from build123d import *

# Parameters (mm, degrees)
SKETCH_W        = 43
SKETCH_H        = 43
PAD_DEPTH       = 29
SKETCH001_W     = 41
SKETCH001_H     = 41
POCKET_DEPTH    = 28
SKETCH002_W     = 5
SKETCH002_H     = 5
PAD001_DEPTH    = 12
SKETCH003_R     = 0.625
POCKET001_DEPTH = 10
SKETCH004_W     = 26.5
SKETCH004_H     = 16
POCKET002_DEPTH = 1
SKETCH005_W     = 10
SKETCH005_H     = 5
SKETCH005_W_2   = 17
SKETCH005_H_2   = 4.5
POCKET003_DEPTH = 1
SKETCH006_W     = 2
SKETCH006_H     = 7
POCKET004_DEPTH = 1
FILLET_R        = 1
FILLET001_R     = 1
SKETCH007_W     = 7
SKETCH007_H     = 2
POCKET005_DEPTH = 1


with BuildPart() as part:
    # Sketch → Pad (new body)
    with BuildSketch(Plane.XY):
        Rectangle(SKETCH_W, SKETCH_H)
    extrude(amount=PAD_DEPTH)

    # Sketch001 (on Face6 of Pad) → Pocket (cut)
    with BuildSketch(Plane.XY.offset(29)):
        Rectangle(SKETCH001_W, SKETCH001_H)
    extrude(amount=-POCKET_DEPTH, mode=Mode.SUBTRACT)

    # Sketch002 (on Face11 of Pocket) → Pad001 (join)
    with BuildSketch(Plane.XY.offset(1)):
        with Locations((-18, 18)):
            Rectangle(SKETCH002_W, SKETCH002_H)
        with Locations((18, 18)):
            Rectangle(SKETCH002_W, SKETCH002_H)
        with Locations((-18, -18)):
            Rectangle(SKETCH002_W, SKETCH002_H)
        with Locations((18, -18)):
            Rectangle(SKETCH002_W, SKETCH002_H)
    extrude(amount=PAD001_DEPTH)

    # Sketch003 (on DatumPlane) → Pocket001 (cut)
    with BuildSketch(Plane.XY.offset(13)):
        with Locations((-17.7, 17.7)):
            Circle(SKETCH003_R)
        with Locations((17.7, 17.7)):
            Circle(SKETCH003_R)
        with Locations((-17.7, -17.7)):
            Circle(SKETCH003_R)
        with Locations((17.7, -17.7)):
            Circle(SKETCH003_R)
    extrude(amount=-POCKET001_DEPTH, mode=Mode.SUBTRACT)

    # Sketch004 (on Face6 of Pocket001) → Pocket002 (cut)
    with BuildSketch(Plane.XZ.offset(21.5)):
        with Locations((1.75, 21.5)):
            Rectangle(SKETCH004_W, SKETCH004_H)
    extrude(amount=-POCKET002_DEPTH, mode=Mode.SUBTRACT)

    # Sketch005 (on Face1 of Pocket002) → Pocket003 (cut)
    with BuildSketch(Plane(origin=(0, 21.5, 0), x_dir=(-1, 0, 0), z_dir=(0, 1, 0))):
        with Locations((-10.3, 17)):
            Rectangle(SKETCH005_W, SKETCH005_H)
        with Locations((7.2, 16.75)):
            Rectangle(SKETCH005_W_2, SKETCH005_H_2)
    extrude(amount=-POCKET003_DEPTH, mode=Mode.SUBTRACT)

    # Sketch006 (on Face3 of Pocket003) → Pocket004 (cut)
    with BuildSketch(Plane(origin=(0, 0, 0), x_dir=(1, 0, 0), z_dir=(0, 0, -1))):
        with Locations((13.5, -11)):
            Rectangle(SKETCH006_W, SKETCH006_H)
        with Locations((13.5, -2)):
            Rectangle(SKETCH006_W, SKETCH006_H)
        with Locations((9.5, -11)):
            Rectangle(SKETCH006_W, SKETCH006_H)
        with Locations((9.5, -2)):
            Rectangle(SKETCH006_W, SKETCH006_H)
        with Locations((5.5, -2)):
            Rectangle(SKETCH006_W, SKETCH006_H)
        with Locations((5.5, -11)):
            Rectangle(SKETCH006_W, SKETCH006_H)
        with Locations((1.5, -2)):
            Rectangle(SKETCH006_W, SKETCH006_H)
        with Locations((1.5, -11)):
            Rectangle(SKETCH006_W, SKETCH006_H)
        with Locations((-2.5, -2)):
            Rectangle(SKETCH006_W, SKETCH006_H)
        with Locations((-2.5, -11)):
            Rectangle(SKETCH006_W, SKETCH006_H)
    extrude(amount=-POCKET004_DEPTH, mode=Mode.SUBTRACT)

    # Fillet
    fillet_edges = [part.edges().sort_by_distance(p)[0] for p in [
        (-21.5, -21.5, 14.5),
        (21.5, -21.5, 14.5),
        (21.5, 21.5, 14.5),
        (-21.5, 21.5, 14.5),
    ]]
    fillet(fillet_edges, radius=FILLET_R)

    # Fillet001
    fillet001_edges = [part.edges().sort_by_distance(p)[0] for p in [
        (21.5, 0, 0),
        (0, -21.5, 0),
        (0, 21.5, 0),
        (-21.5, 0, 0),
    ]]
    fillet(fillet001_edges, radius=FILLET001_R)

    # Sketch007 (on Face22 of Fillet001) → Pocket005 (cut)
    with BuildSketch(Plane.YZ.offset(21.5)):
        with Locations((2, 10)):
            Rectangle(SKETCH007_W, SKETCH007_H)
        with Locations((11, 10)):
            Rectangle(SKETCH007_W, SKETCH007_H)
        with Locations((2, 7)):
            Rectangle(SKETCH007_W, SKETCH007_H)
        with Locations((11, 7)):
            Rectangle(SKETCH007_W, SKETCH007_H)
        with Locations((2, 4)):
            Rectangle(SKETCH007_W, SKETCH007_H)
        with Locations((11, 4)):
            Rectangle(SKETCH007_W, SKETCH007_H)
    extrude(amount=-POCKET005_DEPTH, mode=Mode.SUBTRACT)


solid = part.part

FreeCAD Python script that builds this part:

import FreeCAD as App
import Part
import Sketcher
from FreeCAD import Vector


def edges_at(feature, points):
    """Names of the edges that pass closest to the given points."""
    edges = feature.Shape.Edges
    near = lambda p: min(range(len(edges)), key=lambda i: edges[i].distToShape(Part.Vertex(*p))[0])
    return sorted({f"Edge{near(p) + 1}" for p in points})


def add_polygon(sketch, points):
    """Adds a closed chain of lines whose ends are joined by coincident constraints."""
    first, n = sketch.GeometryCount, len(points)
    for a, b in zip(points, points[1:] + points[:1]):
        sketch.addGeometry(Part.LineSegment(App.Vector(*a, 0), App.Vector(*b, 0)), False)
    for i in range(n):
        sketch.addConstraint(Sketcher.Constraint("Coincident", first + i, 2, first + (i + 1) % n, 1))

doc = App.newDocument("Part")
body = doc.addObject("PartDesign::Body", "Body")

sketch1 = body.newObject("Sketcher::SketchObject", "Sketch")
sketch1.AttachmentSupport = (doc.getObject("XY_Plane"), [""])
sketch1.MapMode = "FlatFace"
add_polygon(sketch1, [(-22, 22), (-22, -22), (22, -22), (22, 22)])
sketch1.addConstraint([
    Sketcher.Constraint("Vertical", 0),
    Sketcher.Constraint("Horizontal", 1),
    Sketcher.Constraint("Vertical", 2),
    Sketcher.Constraint("Horizontal", 3),
    Sketcher.Constraint("Symmetric", 0, 2, 2, 2, -1, 1),
    Sketcher.Constraint("Equal", 3, 0),
    Sketcher.Constraint("DistanceX", 1, 1, 1, 2, 43.0),
])
pad1 = body.newObject("PartDesign::Pad", "Pad")
pad1.Profile = sketch1
pad1.Length = 29

sketch2 = body.newObject("Sketcher::SketchObject", "Sketch001")
sketch2.AttachmentSupport = (doc.getObject("XY_Plane"), [""])
sketch2.MapMode = "FlatFace"
sketch2.AttachmentOffset = App.Placement(Vector(0, 0, 29), App.Rotation())
add_polygon(sketch2, [(-20, 20), (-20, -20), (20, -20), (20, 20)])
sketch2.addConstraint([
    Sketcher.Constraint("Vertical", 0),
    Sketcher.Constraint("Horizontal", 1),
    Sketcher.Constraint("Vertical", 2),
    Sketcher.Constraint("Horizontal", 3),
    Sketcher.Constraint("Symmetric", 0, 2, 2, 2, -1, 1),
    Sketcher.Constraint("Equal", 3, 0),
    Sketcher.Constraint("DistanceX", 1, 1, 1, 2, 41.0),
])
pocket1 = body.newObject("PartDesign::Pocket", "Pocket")
pocket1.Profile = sketch2
pocket1.Length = 28

sketch3 = body.newObject("Sketcher::SketchObject", "Sketch002")
sketch3.AttachmentSupport = (doc.getObject("XY_Plane"), [""])
sketch3.MapMode = "FlatFace"
sketch3.AttachmentOffset = App.Placement(Vector(0, 0, 1), App.Rotation())
add_polygon(sketch3, [(-20, 20), (-20, 16), (-16, 16), (-16, 20)])
add_polygon(sketch3, [(16, 20), (16, 16), (20, 16), (20, 20)])
add_polygon(sketch3, [(-20, -16), (-20, -20), (-16, -20), (-16, -16)])
add_polygon(sketch3, [(16, -16), (16, -20), (20, -20), (20, -16)])
sketch3.addConstraint([
    Sketcher.Constraint("Vertical", 0),
    Sketcher.Constraint("Horizontal", 1),
    Sketcher.Constraint("Vertical", 2),
    Sketcher.Constraint("Horizontal", 3),
    Sketcher.Constraint("Vertical", 4),
    Sketcher.Constraint("Horizontal", 5),
    Sketcher.Constraint("Vertical", 6),
    Sketcher.Constraint("Horizontal", 7),
    Sketcher.Constraint("Vertical", 8),
    Sketcher.Constraint("Horizontal", 9),
    Sketcher.Constraint("Vertical", 10),
    Sketcher.Constraint("Horizontal", 11),
    Sketcher.Constraint("Vertical", 12),
    Sketcher.Constraint("Horizontal", 13),
    Sketcher.Constraint("Vertical", 14),
    Sketcher.Constraint("Horizontal", 15),
    Sketcher.Constraint("Symmetric", 6, 2, 8, 2, -1, 1),
    Sketcher.Constraint("Symmetric", 4, 2, 10, 2, -1, 1),
    Sketcher.Constraint("Symmetric", 2, 2, 12, 2, -1, 1),
    Sketcher.Constraint("Symmetric", 0, 2, 14, 2, -1, 1),
    Sketcher.Constraint("Symmetric", 1, 2, 4, 2, -2),
    Sketcher.Constraint("Symmetric", 3, 2, 6, 2, -2),
    Sketcher.Constraint("Equal", 15, 0),
    Sketcher.Constraint("DistanceX", 1, 1, 1, 2, 5.0),
    Sketcher.Constraint("DistanceX", 1, 2, 4, 2, 31.0),
    Sketcher.Constraint("DistanceY", 8, 2, 0, 2, 36.0),
])
pad2 = body.newObject("PartDesign::Pad", "Pad001")
pad2.Profile = sketch3
pad2.Length = 12

sketch4 = body.newObject("Sketcher::SketchObject", "Sketch003")
sketch4.AttachmentSupport = (doc.getObject("XY_Plane"), [""])
sketch4.MapMode = "FlatFace"
sketch4.AttachmentOffset = App.Placement(Vector(0, 0, 13), App.Rotation())
sketch4.addGeometry([
    Part.Circle(Vector(-17.7, 17.7, 0), Vector(0, 0, 1), 0.6),
    Part.Circle(Vector(17.7, 17.7, 0), Vector(0, 0, 1), 0.6),
    Part.Circle(Vector(-17.7, -17.7, 0), Vector(0, 0, 1), 0.6),
    Part.Circle(Vector(17.7, -17.7, 0), Vector(0, 0, 1), 0.6),
], False)
sketch4.addConstraint([
    Sketcher.Constraint("Equal", 0, 1),
    Sketcher.Constraint("Equal", 1, 2),
    Sketcher.Constraint("Equal", 2, 3),
    Sketcher.Constraint("Symmetric", 1, 3, 2, 3, -1, 1),
    Sketcher.Constraint("Symmetric", 0, 3, 3, 3, -1, 1),
    Sketcher.Constraint("Symmetric", 0, 3, 1, 3, -2),
    Sketcher.Constraint("Diameter", 0, 1.25),
    Sketcher.Constraint("DistanceX", 0, 3, -1, 1, 17.7),
    Sketcher.Constraint("DistanceY", -1, 1, 0, 3, 17.7),
])
pocket2 = body.newObject("PartDesign::Pocket", "Pocket001")
pocket2.Profile = sketch4
pocket2.Length = 10

sketch5 = body.newObject("Sketcher::SketchObject", "Sketch004")
sketch5.AttachmentSupport = (doc.getObject("XZ_Plane"), [""])
sketch5.MapMode = "FlatFace"
sketch5.AttachmentOffset = App.Placement(Vector(0, 0, 21.5), App.Rotation())
add_polygon(sketch5, [(-12, 30), (-12, 14), (15, 14), (15, 30)])
sketch5.addConstraint([
    Sketcher.Constraint("Vertical", 0),
    Sketcher.Constraint("Horizontal", 1),
    Sketcher.Constraint("Vertical", 2),
    Sketcher.Constraint("Horizontal", 3),
    Sketcher.Constraint("DistanceY", 0, 2, 0, 1, 16.0),
    Sketcher.Constraint("DistanceX", 1, 1, 1, 2, 26.5),
    Sketcher.Constraint("DistanceX", -1, 1, 1, 2, 15.0),
    Sketcher.Constraint("DistanceY", -1, 1, 0, 2, 13.5),
])
pocket3 = body.newObject("PartDesign::Pocket", "Pocket002")
pocket3.Profile = sketch5
pocket3.Length = 1

sketch6 = body.newObject("Sketcher::SketchObject", "Sketch005")
sketch6.AttachmentSupport = (doc.getObject("XZ_Plane"), [""])
sketch6.MapMode = "FlatFace"
sketch6.AttachmentOffset = App.Placement(Vector(0, 0, -21.5), App.Rotation())
add_polygon(sketch6, [(15.3, 19.5), (15.3, 14.5), (5.3, 14.5), (5.3, 19.5)])
add_polygon(sketch6, [(1.3, 19), (1.3, 14.5), (-15.7, 14.5), (-15.7, 19)])
sketch6.addConstraint([
    Sketcher.Constraint("Vertical", 0),
    Sketcher.Constraint("Horizontal", 1),
    Sketcher.Constraint("Vertical", 2),
    Sketcher.Constraint("Horizontal", 3),
    Sketcher.Constraint("Vertical", 4),
    Sketcher.Constraint("Horizontal", 5),
    Sketcher.Constraint("Vertical", 6),
    Sketcher.Constraint("Horizontal", 7),
    Sketcher.Constraint("Horizontal", 1, 2, 4, 2),
    Sketcher.Constraint("DistanceX", 1, 2, 1, 1, 10.0),
    Sketcher.Constraint("DistanceX", 5, 2, 5, 1, 17.0),
    Sketcher.Constraint("DistanceY", 0, 2, 0, 1, 5.0),
    Sketcher.Constraint("DistanceY", 4, 2, 4, 1, 4.5),
    Sketcher.Constraint("DistanceY", -1, 1, 6, 2, 19.0),
    Sketcher.Constraint("DistanceX", 4, 2, 1, 2, 4.0),
    Sketcher.Constraint("DistanceX", -1, 1, 0, 2, 15.3),
])
pocket4 = body.newObject("PartDesign::Pocket", "Pocket003")
pocket4.Profile = sketch6
pocket4.Length = 1
pocket4.Reversed = True

sketch7 = body.newObject("Sketcher::SketchObject", "Sketch006")
sketch7.AttachmentSupport = (doc.getObject("XY_Plane"), [""])
sketch7.MapMode = "FlatFace"
add_polygon(sketch7, [(12.5, 7.5), (12.5, 14.5), (14.5, 14.5), (14.5, 7.5)])
add_polygon(sketch7, [(12.5, -1.5), (12.5, 5.5), (14.5, 5.5), (14.5, -1.5)])
add_polygon(sketch7, [(8.5, 7.5), (8.5, 14.5), (10.5, 14.5), (10.5, 7.5)])
add_polygon(sketch7, [(8.5, -1.5), (8.5, 5.5), (10.5, 5.5), (10.5, -1.5)])
add_polygon(sketch7, [(4.5, -1.5), (4.5, 5.5), (6.5, 5.5), (6.5, -1.5)])
add_polygon(sketch7, [(4.5, 7.5), (4.5, 14.5), (6.5, 14.5), (6.5, 7.5)])
add_polygon(sketch7, [(0.5, -1.5), (0.5, 5.5), (2.5, 5.5), (2.5, -1.5)])
add_polygon(sketch7, [(0.5, 7.5), (0.5, 14.5), (2.5, 14.5), (2.5, 7.5)])
add_polygon(sketch7, [(-3.5, -1.5), (-3.5, 5.5), (-1.5, 5.5), (-1.5, -1.5)])
add_polygon(sketch7, [(-3.5, 7.5), (-3.5, 14.5), (-1.5, 14.5), (-1.5, 7.5)])
sketch7.addConstraint([
    Sketcher.Constraint("Vertical", 0),
    Sketcher.Constraint("Horizontal", 1),
    Sketcher.Constraint("Vertical", 2),
    Sketcher.Constraint("Horizontal", 3),
    Sketcher.Constraint("Vertical", 4),
    Sketcher.Constraint("Horizontal", 5),
    Sketcher.Constraint("Vertical", 6),
    Sketcher.Constraint("Horizontal", 7),
    Sketcher.Constraint("Vertical", 8),
    Sketcher.Constraint("Horizontal", 9),
    Sketcher.Constraint("Vertical", 10),
    Sketcher.Constraint("Horizontal", 11),
    Sketcher.Constraint("Vertical", 12),
    Sketcher.Constraint("Horizontal", 13),
    Sketcher.Constraint("Vertical", 14),
    Sketcher.Constraint("Horizontal", 15),
    Sketcher.Constraint("Vertical", 16),
    Sketcher.Constraint("Horizontal", 17),
    Sketcher.Constraint("Vertical", 18),
    Sketcher.Constraint("Horizontal", 19),
    Sketcher.Constraint("Vertical", 20),
    Sketcher.Constraint("Horizontal", 21),
    Sketcher.Constraint("Vertical", 22),
    Sketcher.Constraint("Horizontal", 23),
    Sketcher.Constraint("Vertical", 24),
    Sketcher.Constraint("Horizontal", 25),
    Sketcher.Constraint("Vertical", 26),
    Sketcher.Constraint("Horizontal", 27),
    Sketcher.Constraint("Vertical", 28),
    Sketcher.Constraint("Horizontal", 29),
    Sketcher.Constraint("Vertical", 30),
    Sketcher.Constraint("Horizontal", 31),
    Sketcher.Constraint("Vertical", 32),
    Sketcher.Constraint("Horizontal", 33),
    Sketcher.Constraint("Vertical", 34),
    Sketcher.Constraint("Horizontal", 35),
    Sketcher.Constraint("Vertical", 36),
    Sketcher.Constraint("Horizontal", 37),
    Sketcher.Constraint("Vertical", 38),
    Sketcher.Constraint("Horizontal", 39),
    Sketcher.Constraint("Horizontal", 1, 2, 8, 2),
    Sketcher.Constraint("Horizontal", 3, 2, 10, 2),
    Sketcher.Constraint("Horizontal", 5, 2, 12, 2),
    Sketcher.Constraint("Horizontal", 7, 2, 14, 2),
    Sketcher.Constraint("Horizontal", 13, 2, 16, 2),
    Sketcher.Constraint("Horizontal", 15, 2, 18, 2),
    Sketcher.Constraint("Horizontal", 9, 2, 20, 2),
    Sketcher.Constraint("Horizontal", 11, 2, 22, 2),
    Sketcher.Constraint("Horizontal", 17, 2, 24, 2),
    Sketcher.Constraint("Horizontal", 19, 2, 26, 2),
    Sketcher.Constraint("Horizontal", 21, 2, 28, 2),
    Sketcher.Constraint("Horizontal", 23, 2, 30, 2),
    Sketcher.Constraint("Horizontal", 25, 2, 32, 2),
    Sketcher.Constraint("Horizontal", 27, 2, 34, 2),
    Sketcher.Constraint("Horizontal", 29, 2, 36, 2),
    Sketcher.Constraint("Horizontal", 31, 2, 38, 2),
    Sketcher.Constraint("Vertical", 3, 2, 4, 2),
    Sketcher.Constraint("Vertical", 2, 2, 5, 2),
    Sketcher.Constraint("Vertical", 11, 2, 12, 2),
    Sketcher.Constraint("Vertical", 10, 2, 13, 2),
    Sketcher.Constraint("Vertical", 19, 2, 20, 2),
    Sketcher.Constraint("Vertical", 18, 2, 21, 2),
    Sketcher.Constraint("Vertical", 27, 2, 28, 2),
    Sketcher.Constraint("Vertical", 26, 2, 29, 2),
    Sketcher.Constraint("Vertical", 35, 2, 36, 2),
    Sketcher.Constraint("Vertical", 34, 2, 37, 2),
    Sketcher.Constraint("Equal", 7, 9),
    Sketcher.Constraint("Equal", 15, 17),
    Sketcher.Constraint("Equal", 23, 25),
    Sketcher.Constraint("Equal", 31, 33),
    Sketcher.Constraint("Equal", 2, 4),
    Sketcher.Constraint("DistanceX", 1, 1, 1, 2, 2.0),
    Sketcher.Constraint("DistanceY", 0, 1, 0, 2, 7.0),
    Sketcher.Constraint("DistanceY", 4, 2, 3, 2, 2.0),
    Sketcher.Constraint("DistanceX", 8, 2, 0, 2, 4.0),
    Sketcher.Constraint("DistanceX", 16, 2, 12, 2, 4.0),
    Sketcher.Constraint("DistanceX", 24, 2, 16, 2, 4.0),
    Sketcher.Constraint("DistanceX", 32, 2, 24, 2, 4.0),
    Sketcher.Constraint("DistanceX", -1, 1, 0, 2, 12.5),
    Sketcher.Constraint("DistanceY", -1, 1, 0, 2, 14.5),
])
pocket5 = body.newObject("PartDesign::Pocket", "Pocket004")
pocket5.Profile = sketch7
pocket5.Length = 1
pocket5.Reversed = True
doc.recompute()

fillet = body.newObject("PartDesign::Fillet", "Fillet")
fillet.Base = (pocket5, edges_at(pocket5, [
    (-21.5, -21.5, 14.5),
    (21.5, -21.5, 14.5),
    (21.5, 21.5, 14.5),
    (-21.5, 21.5, 14.5),
]))
fillet.Radius = 1
doc.recompute()

fillet2 = body.newObject("PartDesign::Fillet", "Fillet001")
fillet2.Base = (fillet, edges_at(fillet, [
    (21.5, 0, 0),
    (0, -21.5, 0),
    (0, 21.5, 0),
    (-21.5, 0, 0),
]))
fillet2.Radius = 1

sketch8 = body.newObject("Sketcher::SketchObject", "Sketch007")
sketch8.AttachmentSupport = (doc.getObject("YZ_Plane"), [""])
sketch8.MapMode = "FlatFace"
sketch8.AttachmentOffset = App.Placement(Vector(0, 0, 21.5), App.Rotation())
add_polygon(sketch8, [(-1.5, 11), (-1.5, 9), (5.5, 9), (5.5, 11)])
add_polygon(sketch8, [(7.5, 11), (7.5, 9), (14.5, 9), (14.5, 11)])
add_polygon(sketch8, [(-1.5, 8), (-1.5, 6), (5.5, 6), (5.5, 8)])
add_polygon(sketch8, [(7.5, 8), (7.5, 6), (14.5, 6), (14.5, 8)])
add_polygon(sketch8, [(-1.5, 5), (-1.5, 3), (5.5, 3), (5.5, 5)])
add_polygon(sketch8, [(7.5, 5), (7.5, 3), (14.5, 3), (14.5, 5)])
sketch8.addConstraint([
    Sketcher.Constraint("Vertical", 0),
    Sketcher.Constraint("Horizontal", 1),
    Sketcher.Constraint("Vertical", 2),
    Sketcher.Constraint("Horizontal", 3),
    Sketcher.Constraint("Vertical", 4),
    Sketcher.Constraint("Horizontal", 5),
    Sketcher.Constraint("Vertical", 6),
    Sketcher.Constraint("Horizontal", 7),
    Sketcher.Constraint("Vertical", 8),
    Sketcher.Constraint("Horizontal", 9),
    Sketcher.Constraint("Vertical", 10),
    Sketcher.Constraint("Horizontal", 11),
    Sketcher.Constraint("Vertical", 12),
    Sketcher.Constraint("Horizontal", 13),
    Sketcher.Constraint("Vertical", 14),
    Sketcher.Constraint("Horizontal", 15),
    Sketcher.Constraint("Vertical", 16),
    Sketcher.Constraint("Horizontal", 17),
    Sketcher.Constraint("Vertical", 18),
    Sketcher.Constraint("Horizontal", 19),
    Sketcher.Constraint("Vertical", 20),
    Sketcher.Constraint("Horizontal", 21),
    Sketcher.Constraint("Vertical", 22),
    Sketcher.Constraint("Horizontal", 23),
    Sketcher.Constraint("Horizontal", 1, 2, 4, 2),
    Sketcher.Constraint("Horizontal", 3, 2, 6, 2),
    Sketcher.Constraint("Horizontal", 9, 2, 12, 2),
    Sketcher.Constraint("Horizontal", 11, 2, 14, 2),
    Sketcher.Constraint("Horizontal", 17, 2, 20, 2),
    Sketcher.Constraint("Horizontal", 19, 2, 22, 2),
    Sketcher.Constraint("Vertical", 3, 2, 8, 2),
    Sketcher.Constraint("Vertical", 2, 2, 9, 2),
    Sketcher.Constraint("Vertical", 7, 2, 12, 2),
    Sketcher.Constraint("Vertical", 6, 2, 13, 2),
    Sketcher.Constraint("Vertical", 11, 2, 16, 2),
    Sketcher.Constraint("Vertical", 10, 2, 17, 2),
    Sketcher.Constraint("Vertical", 15, 2, 20, 2),
    Sketcher.Constraint("Vertical", 14, 2, 21, 2),
    Sketcher.Constraint("Equal", 3, 5),
    Sketcher.Constraint("Equal", 6, 8),
    Sketcher.Constraint("Equal", 14, 16),
    Sketcher.Constraint("DistanceX", 1, 1, 1, 2, 7.0),
    Sketcher.Constraint("DistanceY", 0, 2, 0, 1, 2.0),
    Sketcher.Constraint("DistanceY", -1, 1, 0, 2, 9.0),
    Sketcher.Constraint("DistanceY", -1, 1, 8, 2, 6.0),
    Sketcher.Constraint("DistanceY", -1, 1, 16, 2, 3.0),
    Sketcher.Constraint("DistanceX", 1, 2, 4, 2, 2.0),
    Sketcher.Constraint("DistanceX", 0, 2, -1, 1, 1.5),
])
pocket6 = body.newObject("PartDesign::Pocket", "Pocket005")
pocket6.Profile = sketch8
pocket6.Length = 1

doc.recompute()
